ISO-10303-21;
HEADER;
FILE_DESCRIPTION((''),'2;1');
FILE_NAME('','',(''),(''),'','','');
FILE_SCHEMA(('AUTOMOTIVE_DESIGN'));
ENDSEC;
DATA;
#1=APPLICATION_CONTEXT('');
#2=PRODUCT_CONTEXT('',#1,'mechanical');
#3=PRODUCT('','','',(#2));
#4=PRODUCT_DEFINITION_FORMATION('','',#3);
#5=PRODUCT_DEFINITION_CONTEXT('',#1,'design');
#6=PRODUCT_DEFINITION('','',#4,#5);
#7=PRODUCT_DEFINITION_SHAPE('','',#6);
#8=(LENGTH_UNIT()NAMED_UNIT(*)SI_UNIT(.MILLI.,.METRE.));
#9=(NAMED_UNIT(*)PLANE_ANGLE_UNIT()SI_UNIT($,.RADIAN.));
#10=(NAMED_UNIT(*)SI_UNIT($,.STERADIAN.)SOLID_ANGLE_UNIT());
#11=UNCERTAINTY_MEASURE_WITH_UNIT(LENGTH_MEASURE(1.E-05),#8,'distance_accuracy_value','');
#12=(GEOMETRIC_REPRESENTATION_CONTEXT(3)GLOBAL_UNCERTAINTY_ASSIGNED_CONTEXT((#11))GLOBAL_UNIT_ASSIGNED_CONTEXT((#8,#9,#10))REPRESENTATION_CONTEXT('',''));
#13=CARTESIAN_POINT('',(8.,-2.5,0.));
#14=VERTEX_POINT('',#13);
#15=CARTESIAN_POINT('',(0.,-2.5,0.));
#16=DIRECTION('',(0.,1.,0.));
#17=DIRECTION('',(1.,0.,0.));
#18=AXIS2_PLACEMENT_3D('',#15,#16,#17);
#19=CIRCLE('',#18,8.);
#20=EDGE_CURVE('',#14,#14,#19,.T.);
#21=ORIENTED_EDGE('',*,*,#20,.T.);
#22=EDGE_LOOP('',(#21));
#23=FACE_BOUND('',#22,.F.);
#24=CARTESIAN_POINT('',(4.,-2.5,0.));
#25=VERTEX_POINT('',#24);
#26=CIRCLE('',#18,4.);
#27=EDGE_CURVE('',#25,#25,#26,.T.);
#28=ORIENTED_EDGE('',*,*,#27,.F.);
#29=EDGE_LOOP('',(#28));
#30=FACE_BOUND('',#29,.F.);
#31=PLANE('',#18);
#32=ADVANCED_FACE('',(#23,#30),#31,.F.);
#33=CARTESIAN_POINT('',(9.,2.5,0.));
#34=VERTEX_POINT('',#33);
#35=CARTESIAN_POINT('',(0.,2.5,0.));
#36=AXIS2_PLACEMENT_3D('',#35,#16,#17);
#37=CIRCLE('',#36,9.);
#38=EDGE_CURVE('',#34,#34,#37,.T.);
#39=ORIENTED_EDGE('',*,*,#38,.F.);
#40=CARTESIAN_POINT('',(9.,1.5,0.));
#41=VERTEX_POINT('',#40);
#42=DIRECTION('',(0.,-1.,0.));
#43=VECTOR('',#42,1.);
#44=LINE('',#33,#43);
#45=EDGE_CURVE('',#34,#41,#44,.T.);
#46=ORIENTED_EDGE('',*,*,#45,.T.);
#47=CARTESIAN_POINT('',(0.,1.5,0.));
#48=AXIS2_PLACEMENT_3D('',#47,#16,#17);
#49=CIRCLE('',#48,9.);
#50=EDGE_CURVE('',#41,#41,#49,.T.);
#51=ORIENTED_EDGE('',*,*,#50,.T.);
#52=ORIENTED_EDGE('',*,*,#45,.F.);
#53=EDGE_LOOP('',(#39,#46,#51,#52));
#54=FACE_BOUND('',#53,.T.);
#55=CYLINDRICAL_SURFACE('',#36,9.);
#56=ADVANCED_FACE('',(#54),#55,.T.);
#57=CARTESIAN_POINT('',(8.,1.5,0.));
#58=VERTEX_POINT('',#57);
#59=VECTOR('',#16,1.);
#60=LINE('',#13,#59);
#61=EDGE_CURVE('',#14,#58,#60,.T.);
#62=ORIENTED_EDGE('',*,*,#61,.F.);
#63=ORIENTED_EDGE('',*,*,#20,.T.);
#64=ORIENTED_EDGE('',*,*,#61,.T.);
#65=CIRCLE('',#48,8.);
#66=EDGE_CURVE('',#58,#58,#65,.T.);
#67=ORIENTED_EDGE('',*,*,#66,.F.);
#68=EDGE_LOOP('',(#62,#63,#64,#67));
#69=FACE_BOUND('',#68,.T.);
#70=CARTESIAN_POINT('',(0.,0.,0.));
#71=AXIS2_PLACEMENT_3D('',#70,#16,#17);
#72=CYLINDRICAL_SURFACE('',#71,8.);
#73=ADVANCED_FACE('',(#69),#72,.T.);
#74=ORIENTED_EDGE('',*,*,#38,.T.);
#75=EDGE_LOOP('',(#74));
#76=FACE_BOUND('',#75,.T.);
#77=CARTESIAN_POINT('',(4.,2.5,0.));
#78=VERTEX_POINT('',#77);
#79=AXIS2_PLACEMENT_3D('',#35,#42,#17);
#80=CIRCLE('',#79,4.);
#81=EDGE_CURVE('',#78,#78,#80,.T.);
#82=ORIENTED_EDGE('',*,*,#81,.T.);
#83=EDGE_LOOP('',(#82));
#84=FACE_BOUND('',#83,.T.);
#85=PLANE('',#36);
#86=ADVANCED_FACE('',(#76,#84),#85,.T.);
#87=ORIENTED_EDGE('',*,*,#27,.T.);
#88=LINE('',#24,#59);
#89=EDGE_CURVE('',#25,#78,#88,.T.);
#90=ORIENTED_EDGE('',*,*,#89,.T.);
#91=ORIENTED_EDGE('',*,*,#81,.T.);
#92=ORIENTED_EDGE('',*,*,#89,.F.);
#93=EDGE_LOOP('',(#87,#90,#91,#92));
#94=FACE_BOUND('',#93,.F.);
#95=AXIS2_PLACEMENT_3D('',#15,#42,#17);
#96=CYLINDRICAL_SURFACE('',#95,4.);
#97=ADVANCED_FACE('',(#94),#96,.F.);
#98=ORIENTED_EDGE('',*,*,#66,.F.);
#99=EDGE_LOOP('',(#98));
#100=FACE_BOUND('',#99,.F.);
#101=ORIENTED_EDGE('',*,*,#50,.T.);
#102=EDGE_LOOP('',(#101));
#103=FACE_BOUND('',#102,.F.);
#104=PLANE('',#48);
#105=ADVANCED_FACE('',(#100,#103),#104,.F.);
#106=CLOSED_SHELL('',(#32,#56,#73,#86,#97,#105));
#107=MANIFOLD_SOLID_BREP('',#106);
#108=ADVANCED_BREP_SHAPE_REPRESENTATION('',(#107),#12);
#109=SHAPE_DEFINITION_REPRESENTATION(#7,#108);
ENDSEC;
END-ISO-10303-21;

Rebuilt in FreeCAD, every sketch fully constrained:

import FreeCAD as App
import Part
import Sketcher

V = App.Vector
Q = App.Units.Quantity

doc = App.newDocument("Part")
body = doc.addObject("PartDesign::Body", "Body")

# Sketch on XZ plane
sketch1 = doc.addObject("Sketcher::SketchObject", "Sketch")
body.addObject(sketch1)
sketch1.AttachmentSupport = (doc.XZ_Plane, [""])
sketch1.MapMode = "FlatFace"
sketch1.addGeometry(Part.Circle(V(0, 0, 0), V(0, 0, 1), 8), False)
sketch1.addGeometry(Part.Circle(V(0, 0, 0), V(0, 0, 1), 4), False)
sketch1.addConstraint(Sketcher.Constraint("Coincident", 0, 3, -1, 1))
sketch1.addConstraint(Sketcher.Constraint("Coincident", 1, 3, -1, 1))
sketch1.addConstraint(Sketcher.Constraint("Diameter", 0, Q("16 mm")))
sketch1.addConstraint(Sketcher.Constraint("Diameter", 1, Q("8 mm")))
pad1 = doc.addObject("PartDesign::Pad", "Pad")
body.addObject(pad1)
pad1.Profile = sketch1
pad1.Length = 5
pad1.Midplane = True

# Sketch on XZ plane
sketch2 = doc.addObject("Sketcher::SketchObject", "Sketch001")
body.addObject(sketch2)
sketch2.AttachmentSupport = (doc.XZ_Plane, [""])
sketch2.MapMode = "FlatFace"
sketch2.AttachmentOffset = App.Placement(V(0, 0, -2.5), App.Rotation())
sketch2.addGeometry(Part.Circle(V(0, 0, 0), V(0, 0, 1), 9), False)
sketch2.addConstraint(Sketcher.Constraint("Coincident", 0, 3, -1, 1))
sketch2.addConstraint(Sketcher.Constraint("Diameter", 0, Q("18 mm")))
pad2 = doc.addObject("PartDesign::Pad", "Pad001")
body.addObject(pad2)
pad2.Profile = sketch2
pad2.Length = 1

# Sketch on XZ plane
sketch3 = doc.addObject("Sketcher::SketchObject", "Sketch002")
body.addObject(sketch3)
sketch3.AttachmentSupport = (doc.XZ_Plane, [""])
sketch3.MapMode = "FlatFace"
sketch3.AttachmentOffset = App.Placement(V(0, 0, 2.5), App.Rotation())
sketch3.addGeometry(Part.Circle(V(0, 0, 0), V(0, 0, 1), 4), False)
sketch3.addConstraint(Sketcher.Constraint("Coincident", 0, 3, -1, 1))
sketch3.addConstraint(Sketcher.Constraint("Diameter", 0, Q("8 mm")))
pocket1 = doc.addObject("PartDesign::Pocket", "Pocket")
body.addObject(pocket1)
pocket1.Profile = sketch3
pocket1.Type = "ThroughAll"

doc.recompute()
